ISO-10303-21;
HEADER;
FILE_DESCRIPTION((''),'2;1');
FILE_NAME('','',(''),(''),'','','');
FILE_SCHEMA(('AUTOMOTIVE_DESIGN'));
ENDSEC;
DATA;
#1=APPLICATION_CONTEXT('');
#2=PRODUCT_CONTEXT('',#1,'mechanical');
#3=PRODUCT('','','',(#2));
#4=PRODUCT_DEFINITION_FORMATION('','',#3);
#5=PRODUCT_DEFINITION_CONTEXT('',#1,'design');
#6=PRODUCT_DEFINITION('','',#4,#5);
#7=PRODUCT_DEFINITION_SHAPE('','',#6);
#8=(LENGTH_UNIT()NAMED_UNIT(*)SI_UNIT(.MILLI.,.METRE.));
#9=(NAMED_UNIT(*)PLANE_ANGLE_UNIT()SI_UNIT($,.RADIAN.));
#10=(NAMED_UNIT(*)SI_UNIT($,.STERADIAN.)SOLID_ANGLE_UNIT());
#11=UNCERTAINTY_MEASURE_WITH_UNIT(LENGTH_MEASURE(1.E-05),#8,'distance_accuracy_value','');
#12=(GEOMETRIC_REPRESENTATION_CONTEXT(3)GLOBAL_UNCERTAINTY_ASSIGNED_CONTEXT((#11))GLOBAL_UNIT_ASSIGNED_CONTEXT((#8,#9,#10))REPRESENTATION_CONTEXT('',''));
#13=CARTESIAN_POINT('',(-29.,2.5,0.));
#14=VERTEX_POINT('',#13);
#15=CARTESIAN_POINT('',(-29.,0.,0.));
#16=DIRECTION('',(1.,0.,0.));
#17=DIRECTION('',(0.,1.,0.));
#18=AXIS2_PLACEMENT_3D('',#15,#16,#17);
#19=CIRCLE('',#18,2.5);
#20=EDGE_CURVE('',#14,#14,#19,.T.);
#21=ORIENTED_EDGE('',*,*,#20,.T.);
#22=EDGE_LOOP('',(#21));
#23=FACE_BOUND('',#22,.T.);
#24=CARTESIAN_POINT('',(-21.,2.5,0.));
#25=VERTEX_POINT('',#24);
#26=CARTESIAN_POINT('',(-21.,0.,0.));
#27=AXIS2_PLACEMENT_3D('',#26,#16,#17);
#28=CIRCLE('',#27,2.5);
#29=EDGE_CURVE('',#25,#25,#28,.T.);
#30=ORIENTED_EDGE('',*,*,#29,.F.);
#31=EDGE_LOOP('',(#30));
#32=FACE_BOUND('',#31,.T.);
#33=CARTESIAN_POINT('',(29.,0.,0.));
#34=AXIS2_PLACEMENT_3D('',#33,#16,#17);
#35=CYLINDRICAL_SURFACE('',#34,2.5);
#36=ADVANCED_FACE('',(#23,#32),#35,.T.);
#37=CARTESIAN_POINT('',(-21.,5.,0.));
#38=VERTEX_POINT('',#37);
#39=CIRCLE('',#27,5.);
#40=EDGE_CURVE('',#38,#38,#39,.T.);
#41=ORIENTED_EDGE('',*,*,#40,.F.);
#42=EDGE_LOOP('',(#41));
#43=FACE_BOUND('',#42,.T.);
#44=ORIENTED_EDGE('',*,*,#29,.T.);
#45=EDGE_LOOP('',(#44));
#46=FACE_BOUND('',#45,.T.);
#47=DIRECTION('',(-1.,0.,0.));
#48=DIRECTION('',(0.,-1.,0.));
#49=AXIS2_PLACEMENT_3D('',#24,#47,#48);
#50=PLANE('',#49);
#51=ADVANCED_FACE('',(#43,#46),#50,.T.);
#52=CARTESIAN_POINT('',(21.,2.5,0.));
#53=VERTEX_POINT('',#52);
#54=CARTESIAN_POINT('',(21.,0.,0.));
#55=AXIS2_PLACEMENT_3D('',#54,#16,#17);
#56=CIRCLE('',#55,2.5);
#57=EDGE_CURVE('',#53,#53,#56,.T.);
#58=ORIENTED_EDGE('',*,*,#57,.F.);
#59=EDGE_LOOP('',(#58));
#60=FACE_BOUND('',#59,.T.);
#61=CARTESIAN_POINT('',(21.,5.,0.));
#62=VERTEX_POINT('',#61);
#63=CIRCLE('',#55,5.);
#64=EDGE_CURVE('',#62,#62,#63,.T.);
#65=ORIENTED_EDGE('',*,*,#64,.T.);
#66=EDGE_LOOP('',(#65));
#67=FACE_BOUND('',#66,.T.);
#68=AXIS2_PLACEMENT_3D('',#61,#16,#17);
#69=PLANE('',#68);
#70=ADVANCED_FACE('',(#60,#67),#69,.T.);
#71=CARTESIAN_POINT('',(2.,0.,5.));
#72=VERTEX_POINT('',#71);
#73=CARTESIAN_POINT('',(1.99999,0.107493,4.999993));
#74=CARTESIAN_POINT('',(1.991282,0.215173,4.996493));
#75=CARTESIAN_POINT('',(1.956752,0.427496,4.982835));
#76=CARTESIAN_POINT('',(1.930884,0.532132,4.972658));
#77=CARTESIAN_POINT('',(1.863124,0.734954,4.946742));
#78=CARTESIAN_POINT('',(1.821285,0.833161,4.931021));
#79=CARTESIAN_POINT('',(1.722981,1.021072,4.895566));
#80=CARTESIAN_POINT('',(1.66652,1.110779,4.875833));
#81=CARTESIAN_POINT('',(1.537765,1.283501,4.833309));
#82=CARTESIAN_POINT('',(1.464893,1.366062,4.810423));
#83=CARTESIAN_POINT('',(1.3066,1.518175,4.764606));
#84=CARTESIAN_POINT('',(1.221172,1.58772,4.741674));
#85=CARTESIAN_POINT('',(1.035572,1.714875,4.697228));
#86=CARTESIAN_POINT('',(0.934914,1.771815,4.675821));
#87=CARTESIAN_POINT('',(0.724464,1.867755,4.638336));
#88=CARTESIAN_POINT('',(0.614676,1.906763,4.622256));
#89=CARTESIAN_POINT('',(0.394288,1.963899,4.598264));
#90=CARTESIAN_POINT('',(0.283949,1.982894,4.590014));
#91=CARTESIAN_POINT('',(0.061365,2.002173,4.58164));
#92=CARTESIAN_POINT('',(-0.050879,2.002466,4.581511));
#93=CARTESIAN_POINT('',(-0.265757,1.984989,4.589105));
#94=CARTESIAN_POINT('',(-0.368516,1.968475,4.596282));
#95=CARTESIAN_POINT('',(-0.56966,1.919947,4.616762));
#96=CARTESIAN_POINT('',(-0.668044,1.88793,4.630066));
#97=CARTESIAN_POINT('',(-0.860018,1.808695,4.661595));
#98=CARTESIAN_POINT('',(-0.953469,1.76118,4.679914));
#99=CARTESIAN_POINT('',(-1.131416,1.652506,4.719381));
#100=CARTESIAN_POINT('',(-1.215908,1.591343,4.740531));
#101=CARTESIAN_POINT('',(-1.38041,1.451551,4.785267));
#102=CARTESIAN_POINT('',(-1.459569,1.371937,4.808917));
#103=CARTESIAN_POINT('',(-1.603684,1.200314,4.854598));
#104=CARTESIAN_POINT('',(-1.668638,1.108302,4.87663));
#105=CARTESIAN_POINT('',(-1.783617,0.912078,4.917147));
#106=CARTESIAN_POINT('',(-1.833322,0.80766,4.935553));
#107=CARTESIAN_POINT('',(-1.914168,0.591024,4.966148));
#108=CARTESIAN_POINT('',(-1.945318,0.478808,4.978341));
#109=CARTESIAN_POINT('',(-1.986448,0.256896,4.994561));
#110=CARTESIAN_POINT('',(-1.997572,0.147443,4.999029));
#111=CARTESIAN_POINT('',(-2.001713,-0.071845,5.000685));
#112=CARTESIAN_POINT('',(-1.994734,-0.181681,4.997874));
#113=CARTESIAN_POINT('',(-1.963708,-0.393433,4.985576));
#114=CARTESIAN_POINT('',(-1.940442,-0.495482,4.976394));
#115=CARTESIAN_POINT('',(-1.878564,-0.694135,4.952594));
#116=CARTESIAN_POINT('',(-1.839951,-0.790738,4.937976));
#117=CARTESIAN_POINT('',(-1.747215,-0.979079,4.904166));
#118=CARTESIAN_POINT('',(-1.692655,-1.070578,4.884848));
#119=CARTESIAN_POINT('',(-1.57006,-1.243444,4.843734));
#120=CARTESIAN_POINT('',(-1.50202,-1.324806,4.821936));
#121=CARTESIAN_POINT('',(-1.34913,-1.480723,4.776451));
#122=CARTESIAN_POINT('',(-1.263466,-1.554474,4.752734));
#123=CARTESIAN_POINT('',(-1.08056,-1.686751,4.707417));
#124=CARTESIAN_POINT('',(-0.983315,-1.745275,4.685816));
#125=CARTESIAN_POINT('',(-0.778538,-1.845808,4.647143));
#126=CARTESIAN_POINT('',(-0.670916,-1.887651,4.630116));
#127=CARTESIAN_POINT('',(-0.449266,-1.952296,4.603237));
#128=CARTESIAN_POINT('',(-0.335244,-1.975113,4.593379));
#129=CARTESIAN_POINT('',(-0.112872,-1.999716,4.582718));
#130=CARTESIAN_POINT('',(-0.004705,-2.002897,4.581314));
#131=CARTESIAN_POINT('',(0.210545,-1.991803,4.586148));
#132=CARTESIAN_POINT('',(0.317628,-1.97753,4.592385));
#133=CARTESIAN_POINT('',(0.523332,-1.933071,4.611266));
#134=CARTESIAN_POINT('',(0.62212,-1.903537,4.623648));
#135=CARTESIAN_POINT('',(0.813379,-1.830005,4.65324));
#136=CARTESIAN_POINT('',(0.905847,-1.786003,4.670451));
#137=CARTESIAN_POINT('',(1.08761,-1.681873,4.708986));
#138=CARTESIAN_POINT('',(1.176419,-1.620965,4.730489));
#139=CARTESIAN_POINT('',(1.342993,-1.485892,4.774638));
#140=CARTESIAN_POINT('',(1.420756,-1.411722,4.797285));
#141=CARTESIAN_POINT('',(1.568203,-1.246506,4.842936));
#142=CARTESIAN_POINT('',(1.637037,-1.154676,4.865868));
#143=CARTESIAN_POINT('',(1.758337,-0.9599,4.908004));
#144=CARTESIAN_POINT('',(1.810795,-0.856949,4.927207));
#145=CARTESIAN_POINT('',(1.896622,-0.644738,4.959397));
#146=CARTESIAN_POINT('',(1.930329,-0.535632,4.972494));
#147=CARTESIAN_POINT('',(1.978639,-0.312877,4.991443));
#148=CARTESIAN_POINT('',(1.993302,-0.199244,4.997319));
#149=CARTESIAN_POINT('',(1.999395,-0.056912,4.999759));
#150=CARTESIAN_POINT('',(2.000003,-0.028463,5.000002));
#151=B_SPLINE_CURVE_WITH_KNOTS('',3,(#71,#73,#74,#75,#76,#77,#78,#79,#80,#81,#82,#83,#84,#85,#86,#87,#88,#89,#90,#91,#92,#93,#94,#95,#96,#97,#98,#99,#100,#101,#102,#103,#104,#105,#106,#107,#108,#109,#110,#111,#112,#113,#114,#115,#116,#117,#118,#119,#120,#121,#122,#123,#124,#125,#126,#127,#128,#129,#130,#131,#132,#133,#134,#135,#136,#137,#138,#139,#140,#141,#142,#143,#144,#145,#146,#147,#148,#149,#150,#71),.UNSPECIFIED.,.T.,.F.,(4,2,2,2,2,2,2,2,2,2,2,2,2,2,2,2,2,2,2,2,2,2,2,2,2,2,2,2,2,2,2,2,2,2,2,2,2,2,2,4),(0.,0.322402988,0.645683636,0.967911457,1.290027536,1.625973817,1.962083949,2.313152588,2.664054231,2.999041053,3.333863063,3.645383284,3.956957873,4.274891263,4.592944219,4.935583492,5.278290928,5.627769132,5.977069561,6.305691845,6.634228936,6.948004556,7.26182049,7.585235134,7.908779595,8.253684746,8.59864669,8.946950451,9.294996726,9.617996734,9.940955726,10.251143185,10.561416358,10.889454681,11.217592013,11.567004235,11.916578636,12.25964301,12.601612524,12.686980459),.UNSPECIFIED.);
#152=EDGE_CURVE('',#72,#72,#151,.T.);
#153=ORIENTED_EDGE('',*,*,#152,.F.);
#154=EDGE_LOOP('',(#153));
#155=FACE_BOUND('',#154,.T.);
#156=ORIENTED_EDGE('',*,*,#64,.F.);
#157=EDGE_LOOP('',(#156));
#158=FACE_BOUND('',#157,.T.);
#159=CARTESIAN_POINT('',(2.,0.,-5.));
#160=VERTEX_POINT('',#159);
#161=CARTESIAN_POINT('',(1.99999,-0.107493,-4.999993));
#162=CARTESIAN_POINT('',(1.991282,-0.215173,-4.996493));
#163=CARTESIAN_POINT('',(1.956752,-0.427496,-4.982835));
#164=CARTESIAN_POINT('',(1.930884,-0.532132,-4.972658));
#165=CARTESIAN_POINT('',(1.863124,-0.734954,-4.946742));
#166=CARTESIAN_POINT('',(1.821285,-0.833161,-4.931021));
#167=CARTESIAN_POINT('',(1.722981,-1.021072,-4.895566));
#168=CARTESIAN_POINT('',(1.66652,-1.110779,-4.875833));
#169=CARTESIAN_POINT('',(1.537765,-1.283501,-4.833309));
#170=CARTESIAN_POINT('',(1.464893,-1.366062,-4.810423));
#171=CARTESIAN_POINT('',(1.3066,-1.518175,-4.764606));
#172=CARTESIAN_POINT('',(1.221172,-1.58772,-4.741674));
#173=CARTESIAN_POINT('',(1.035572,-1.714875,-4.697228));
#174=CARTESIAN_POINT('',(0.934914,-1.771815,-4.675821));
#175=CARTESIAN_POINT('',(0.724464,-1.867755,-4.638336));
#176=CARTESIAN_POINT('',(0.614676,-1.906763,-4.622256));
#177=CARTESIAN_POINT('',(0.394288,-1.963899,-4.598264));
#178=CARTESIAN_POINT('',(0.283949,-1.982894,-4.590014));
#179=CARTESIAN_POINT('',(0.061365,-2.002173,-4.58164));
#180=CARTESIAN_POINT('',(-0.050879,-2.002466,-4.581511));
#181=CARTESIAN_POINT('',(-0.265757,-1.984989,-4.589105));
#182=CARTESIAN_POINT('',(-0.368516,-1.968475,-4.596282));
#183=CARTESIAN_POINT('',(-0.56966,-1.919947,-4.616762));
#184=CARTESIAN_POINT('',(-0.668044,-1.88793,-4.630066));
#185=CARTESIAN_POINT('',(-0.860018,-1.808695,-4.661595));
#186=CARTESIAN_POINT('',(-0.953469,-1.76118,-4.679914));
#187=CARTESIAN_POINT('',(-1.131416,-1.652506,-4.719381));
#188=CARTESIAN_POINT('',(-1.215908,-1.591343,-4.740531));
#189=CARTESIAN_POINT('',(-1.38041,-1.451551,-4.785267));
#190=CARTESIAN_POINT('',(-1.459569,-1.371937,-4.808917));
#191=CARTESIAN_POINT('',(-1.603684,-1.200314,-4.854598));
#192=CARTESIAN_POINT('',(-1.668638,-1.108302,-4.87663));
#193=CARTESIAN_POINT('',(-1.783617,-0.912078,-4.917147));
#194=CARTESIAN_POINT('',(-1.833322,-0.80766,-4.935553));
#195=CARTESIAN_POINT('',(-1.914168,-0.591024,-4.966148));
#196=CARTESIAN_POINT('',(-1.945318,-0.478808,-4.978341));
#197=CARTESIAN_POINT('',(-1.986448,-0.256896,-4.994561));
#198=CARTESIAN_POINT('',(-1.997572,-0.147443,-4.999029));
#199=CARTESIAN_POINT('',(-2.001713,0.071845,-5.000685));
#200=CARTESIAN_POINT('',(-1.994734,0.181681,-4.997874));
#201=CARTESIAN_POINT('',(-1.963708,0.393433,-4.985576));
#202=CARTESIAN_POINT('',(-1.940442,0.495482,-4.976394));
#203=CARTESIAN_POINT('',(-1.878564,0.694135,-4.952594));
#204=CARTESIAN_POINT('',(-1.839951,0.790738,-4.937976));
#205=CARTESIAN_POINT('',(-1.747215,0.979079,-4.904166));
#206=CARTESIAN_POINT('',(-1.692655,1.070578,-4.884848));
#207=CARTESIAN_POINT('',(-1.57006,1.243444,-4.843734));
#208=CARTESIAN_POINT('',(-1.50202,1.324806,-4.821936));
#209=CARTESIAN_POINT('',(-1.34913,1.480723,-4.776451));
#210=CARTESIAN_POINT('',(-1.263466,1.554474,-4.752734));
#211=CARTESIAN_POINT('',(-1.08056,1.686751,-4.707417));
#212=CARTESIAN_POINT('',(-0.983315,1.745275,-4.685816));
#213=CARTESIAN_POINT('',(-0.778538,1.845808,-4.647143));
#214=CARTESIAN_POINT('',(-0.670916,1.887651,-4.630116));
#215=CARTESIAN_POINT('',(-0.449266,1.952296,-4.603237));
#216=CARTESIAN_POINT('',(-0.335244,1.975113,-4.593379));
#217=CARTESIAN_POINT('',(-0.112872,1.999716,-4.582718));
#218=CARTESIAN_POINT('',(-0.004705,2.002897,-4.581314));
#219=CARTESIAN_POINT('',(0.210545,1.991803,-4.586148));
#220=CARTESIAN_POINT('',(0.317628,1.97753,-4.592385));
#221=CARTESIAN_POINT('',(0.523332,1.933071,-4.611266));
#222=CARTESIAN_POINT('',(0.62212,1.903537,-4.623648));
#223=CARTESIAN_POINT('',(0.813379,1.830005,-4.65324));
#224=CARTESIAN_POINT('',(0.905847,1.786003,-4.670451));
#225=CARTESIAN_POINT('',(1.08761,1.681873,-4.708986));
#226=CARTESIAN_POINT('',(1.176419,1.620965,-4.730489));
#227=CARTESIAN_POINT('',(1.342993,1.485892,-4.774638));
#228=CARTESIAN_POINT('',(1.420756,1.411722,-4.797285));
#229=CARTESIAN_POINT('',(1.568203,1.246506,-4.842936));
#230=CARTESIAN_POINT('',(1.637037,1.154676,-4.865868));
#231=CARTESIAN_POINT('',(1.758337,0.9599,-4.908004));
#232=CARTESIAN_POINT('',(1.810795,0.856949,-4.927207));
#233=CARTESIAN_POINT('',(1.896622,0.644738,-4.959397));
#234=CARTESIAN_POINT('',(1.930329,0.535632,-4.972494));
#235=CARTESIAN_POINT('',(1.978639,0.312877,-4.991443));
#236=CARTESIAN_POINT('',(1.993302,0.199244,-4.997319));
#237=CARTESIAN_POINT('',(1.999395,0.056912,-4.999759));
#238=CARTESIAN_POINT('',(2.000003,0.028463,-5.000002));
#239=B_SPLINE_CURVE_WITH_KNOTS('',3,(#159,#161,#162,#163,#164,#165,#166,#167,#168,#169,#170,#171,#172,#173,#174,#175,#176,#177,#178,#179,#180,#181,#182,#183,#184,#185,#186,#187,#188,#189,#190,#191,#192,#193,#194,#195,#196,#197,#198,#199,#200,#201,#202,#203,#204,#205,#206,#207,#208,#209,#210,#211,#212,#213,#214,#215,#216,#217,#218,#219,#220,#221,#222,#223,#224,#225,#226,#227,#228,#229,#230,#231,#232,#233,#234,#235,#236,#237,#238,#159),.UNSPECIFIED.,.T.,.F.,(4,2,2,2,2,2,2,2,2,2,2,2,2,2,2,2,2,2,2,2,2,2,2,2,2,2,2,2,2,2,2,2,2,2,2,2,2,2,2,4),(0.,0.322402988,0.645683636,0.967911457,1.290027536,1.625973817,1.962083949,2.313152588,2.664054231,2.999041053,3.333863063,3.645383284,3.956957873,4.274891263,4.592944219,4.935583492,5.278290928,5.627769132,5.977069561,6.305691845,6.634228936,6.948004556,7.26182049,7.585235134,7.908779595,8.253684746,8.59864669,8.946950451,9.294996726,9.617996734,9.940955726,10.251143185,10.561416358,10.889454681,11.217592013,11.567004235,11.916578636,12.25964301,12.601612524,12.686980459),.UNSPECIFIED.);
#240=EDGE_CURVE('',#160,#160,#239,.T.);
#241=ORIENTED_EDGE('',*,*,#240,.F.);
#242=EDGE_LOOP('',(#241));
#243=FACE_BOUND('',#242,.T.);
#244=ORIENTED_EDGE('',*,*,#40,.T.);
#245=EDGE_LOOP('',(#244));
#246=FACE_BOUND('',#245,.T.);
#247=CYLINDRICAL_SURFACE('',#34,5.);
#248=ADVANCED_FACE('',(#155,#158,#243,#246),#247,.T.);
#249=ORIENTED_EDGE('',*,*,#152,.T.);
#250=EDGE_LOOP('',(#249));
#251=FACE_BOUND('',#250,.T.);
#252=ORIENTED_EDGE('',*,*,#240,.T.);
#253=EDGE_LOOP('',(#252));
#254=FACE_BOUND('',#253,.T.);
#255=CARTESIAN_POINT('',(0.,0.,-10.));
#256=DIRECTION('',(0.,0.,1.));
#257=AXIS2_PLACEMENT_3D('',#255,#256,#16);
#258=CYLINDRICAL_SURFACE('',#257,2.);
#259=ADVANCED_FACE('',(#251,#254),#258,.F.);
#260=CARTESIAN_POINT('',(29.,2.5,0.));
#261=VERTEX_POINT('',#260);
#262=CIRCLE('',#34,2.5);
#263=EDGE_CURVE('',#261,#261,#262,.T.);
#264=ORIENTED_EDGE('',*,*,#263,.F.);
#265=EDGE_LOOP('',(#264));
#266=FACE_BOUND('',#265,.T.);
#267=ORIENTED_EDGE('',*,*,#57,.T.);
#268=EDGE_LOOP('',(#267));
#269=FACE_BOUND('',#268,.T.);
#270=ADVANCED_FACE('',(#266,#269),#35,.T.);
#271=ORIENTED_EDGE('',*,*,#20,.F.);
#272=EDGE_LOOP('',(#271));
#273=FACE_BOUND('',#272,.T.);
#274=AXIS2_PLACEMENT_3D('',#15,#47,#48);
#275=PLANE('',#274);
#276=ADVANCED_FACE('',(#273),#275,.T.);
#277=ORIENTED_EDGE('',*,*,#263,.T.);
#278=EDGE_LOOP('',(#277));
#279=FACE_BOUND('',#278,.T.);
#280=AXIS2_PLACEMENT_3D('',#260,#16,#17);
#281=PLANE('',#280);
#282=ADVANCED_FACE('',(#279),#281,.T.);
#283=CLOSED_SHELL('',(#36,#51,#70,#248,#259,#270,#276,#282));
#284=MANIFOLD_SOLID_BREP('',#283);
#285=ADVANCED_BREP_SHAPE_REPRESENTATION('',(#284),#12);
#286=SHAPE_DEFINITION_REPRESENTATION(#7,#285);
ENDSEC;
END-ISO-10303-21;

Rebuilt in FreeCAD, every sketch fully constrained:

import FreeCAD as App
import Part
import Sketcher
Q = App.Units.Quantity


def add_polygon(sketch, points):
    """Adds a closed chain of lines whose ends are joined by coincident constraints."""
    first, n = sketch.GeometryCount, len(points)
    for a, b in zip(points, points[1:] + points[:1]):
        sketch.addGeometry(Part.LineSegment(App.Vector(*a, 0), App.Vector(*b, 0)), False)
    for i in range(n):
        sketch.addConstraint(Sketcher.Constraint("Coincident", first + i, 2, first + (i + 1) % n, 1))

doc = App.newDocument("Part")
body = doc.addObject("PartDesign::Body", "Body")

# Sketch on XY plane
sketch1 = body.newObject("Sketcher::SketchObject", "Sketch")
sketch1.AttachmentSupport = (doc.getObject("XY_Plane"), [""])
sketch1.MapMode = "FlatFace"
add_polygon(sketch1, [(-29, 2.5), (-29, 0), (29, 0), (29, 2.5), (21, 2.5), (21, 5), (-21, 5), (-21, 2.5)])  # lines 0-7
sketch1.addConstraint([
    Sketcher.Constraint("Vertical", 0),
    Sketcher.Constraint("Horizontal", 1),
    Sketcher.Constraint("Vertical", 2),
    Sketcher.Constraint("Horizontal", 3),
    Sketcher.Constraint("Vertical", 4),
    Sketcher.Constraint("Horizontal", 5),
    Sketcher.Constraint("Vertical", 6),
    Sketcher.Constraint("Horizontal", 7),
    Sketcher.Constraint("Symmetric", 0, 2, 1, 2, -1, 1),
    Sketcher.Constraint("Symmetric", 3, 2, 6, 2, -2),
    Sketcher.Constraint("Equal", 2, 4),
    Sketcher.Constraint("DistanceX", 1, 1, 1, 2, Q("58 mm")),
    Sketcher.Constraint("DistanceX", 3, 2, 3, 1, Q("8 mm")),
    Sketcher.Constraint("DistanceY", 0, 2, 0, 1, Q("2.5 mm")),
])
revolution = body.newObject("PartDesign::Revolution", "Revolution")
revolution.Profile = sketch1
revolution.ReferenceAxis = (sketch1, ["H_Axis"])
revolution.Angle = 360

# Sketch on XY plane
sketch2 = body.newObject("Sketcher::SketchObject", "Sketch001")
sketch2.AttachmentSupport = (doc.getObject("XY_Plane"), [""])
sketch2.MapMode = "FlatFace"
sketch2.addGeometry(Part.Circle(App.Vector(0, 0, 0), App.Vector(0, 0, 1), 2), False)
sketch2.addConstraint([
    Sketcher.Constraint("Coincident", 0, 3, -1, 1),
    Sketcher.Constraint("Diameter", 0, Q("4 mm")),
])
pocket1 = body.newObject("PartDesign::Pocket", "Pocket")
pocket1.Profile = sketch2
pocket1.Length = 20
pocket1.Midplane = True

doc.recompute()
